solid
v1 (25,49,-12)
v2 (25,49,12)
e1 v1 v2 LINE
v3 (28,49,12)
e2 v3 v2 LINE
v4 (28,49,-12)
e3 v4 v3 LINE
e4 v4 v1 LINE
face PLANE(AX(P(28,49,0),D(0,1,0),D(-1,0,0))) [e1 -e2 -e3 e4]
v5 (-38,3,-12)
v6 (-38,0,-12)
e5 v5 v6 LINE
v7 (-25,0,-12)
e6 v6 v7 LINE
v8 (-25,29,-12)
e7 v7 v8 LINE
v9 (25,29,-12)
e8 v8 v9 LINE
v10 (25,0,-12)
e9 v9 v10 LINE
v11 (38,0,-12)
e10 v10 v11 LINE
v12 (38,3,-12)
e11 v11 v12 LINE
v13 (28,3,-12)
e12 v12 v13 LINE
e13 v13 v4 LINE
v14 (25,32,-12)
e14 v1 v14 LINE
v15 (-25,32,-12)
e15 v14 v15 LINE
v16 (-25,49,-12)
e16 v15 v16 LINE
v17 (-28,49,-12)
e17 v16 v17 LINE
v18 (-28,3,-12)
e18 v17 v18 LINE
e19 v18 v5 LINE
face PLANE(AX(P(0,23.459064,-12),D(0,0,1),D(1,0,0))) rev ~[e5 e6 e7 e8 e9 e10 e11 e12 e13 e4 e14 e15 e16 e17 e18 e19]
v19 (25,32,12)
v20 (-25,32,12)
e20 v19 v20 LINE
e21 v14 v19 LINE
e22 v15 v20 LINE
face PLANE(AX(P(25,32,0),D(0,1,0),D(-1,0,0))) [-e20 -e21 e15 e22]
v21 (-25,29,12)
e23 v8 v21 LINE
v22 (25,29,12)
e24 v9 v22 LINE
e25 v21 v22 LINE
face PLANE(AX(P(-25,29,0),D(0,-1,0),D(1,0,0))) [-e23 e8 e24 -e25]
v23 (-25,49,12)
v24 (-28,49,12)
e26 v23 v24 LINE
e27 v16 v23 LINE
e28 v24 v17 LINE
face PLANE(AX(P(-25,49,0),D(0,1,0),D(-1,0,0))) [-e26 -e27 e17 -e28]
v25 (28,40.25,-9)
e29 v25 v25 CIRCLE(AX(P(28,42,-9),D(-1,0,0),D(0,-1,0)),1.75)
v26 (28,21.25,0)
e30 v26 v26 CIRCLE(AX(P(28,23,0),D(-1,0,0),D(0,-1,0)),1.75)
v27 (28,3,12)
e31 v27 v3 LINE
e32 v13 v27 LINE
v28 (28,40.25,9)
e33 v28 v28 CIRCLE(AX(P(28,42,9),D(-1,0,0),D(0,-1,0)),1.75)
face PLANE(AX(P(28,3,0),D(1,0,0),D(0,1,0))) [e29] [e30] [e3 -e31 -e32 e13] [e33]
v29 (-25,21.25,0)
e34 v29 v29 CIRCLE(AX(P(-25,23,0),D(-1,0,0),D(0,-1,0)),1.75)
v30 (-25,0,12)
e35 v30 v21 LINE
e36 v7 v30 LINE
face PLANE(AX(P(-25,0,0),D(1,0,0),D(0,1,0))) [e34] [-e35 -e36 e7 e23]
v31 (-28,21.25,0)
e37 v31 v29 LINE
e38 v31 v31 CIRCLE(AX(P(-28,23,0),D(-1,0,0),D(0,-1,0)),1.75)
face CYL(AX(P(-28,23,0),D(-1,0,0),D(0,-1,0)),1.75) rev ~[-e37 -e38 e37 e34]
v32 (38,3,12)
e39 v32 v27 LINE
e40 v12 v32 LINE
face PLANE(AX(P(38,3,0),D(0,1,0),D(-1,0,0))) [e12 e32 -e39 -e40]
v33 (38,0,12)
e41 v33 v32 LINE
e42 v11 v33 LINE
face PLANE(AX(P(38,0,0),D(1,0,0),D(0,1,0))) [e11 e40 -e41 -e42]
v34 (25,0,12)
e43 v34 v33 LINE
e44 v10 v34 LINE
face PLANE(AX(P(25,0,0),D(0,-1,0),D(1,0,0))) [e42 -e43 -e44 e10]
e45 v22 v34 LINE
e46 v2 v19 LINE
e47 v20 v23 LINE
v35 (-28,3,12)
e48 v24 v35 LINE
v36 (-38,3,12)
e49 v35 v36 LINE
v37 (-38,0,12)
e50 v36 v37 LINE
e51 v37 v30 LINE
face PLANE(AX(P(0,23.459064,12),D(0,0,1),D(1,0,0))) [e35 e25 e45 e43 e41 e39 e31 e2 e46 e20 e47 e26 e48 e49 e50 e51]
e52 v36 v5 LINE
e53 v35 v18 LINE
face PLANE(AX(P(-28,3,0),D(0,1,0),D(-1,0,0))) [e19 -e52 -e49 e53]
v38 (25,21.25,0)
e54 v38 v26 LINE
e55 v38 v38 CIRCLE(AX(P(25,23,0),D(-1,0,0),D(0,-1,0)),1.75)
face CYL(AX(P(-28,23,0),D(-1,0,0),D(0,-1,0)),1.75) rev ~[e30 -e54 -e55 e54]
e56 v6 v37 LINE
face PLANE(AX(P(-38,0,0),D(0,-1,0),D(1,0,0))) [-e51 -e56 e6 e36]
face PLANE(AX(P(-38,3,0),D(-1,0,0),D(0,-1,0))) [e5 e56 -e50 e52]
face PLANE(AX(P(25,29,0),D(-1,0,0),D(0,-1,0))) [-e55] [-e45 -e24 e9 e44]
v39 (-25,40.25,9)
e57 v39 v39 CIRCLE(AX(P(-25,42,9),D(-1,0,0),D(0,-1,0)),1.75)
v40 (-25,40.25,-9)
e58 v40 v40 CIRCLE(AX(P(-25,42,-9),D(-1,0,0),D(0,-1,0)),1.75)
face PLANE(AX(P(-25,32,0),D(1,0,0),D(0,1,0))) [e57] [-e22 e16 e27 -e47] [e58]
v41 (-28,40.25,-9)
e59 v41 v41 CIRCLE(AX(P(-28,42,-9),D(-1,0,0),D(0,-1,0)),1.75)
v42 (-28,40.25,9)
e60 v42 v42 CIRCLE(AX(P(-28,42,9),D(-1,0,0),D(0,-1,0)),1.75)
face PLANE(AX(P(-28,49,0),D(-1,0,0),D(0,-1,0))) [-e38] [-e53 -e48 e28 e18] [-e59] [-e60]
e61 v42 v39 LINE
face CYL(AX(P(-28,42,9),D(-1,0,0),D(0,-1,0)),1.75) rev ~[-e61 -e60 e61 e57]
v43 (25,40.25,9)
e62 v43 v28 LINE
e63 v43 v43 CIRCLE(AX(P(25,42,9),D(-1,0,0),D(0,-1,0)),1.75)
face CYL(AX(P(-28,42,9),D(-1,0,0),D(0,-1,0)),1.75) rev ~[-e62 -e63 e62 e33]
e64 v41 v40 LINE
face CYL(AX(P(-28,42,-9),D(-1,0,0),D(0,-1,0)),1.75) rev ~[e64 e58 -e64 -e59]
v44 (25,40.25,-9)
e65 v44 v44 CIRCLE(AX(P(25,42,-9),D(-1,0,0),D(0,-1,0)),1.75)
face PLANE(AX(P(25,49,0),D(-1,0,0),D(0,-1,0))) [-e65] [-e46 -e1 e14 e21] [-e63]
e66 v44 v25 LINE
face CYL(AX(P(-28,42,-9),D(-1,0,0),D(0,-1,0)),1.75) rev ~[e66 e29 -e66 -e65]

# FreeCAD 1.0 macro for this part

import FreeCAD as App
import Part
import Sketcher
from FreeCAD import Vector
Q = App.Units.Quantity


def add_polygon(sketch, points):
    """Adds a closed chain of lines whose ends are joined by coincident constraints."""
    first, n = sketch.GeometryCount, len(points)
    for a, b in zip(points, points[1:] + points[:1]):
        sketch.addGeometry(Part.LineSegment(App.Vector(*a, 0), App.Vector(*b, 0)), False)
    for i in range(n):
        sketch.addConstraint(Sketcher.Constraint("Coincident", first + i, 2, first + (i + 1) % n, 1))

doc = App.newDocument("Part")
body = doc.addObject("PartDesign::Body", "Body")

sketch1 = body.newObject("Sketcher::SketchObject", "Sketch")
sketch1.AttachmentSupport = (doc.getObject("XY_Plane"), [""])
sketch1.MapMode = "FlatFace"
add_polygon(sketch1, [(-38, 3), (-38, 0), (-25, 0), (-25, 29), (25, 29), (25, 0), (38, 0), (38, 3), (28, 3), (28, 49), (25, 49), (25, 32), (-25, 32), (-25, 49), (-28, 49), (-28, 3)])
sketch1.addConstraint(Sketcher.Constraint("Vertical", 0))
sketch1.addConstraint(Sketcher.Constraint("Horizontal", 1))
sketch1.addConstraint(Sketcher.Constraint("Vertical", 2))
sketch1.addConstraint(Sketcher.Constraint("Horizontal", 3))
sketch1.addConstraint(Sketcher.Constraint("Vertical", 4))
sketch1.addConstraint(Sketcher.Constraint("Horizontal", 5))
sketch1.addConstraint(Sketcher.Constraint("Vertical", 6))
sketch1.addConstraint(Sketcher.Constraint("Horizontal", 7))
sketch1.addConstraint(Sketcher.Constraint("Vertical", 8))
sketch1.addConstraint(Sketcher.Constraint("Horizontal", 9))
sketch1.addConstraint(Sketcher.Constraint("Vertical", 10))
sketch1.addConstraint(Sketcher.Constraint("Horizontal", 11))
sketch1.addConstraint(Sketcher.Constraint("Vertical", 12))
sketch1.addConstraint(Sketcher.Constraint("Horizontal", 13))
sketch1.addConstraint(Sketcher.Constraint("Vertical", 14))
sketch1.addConstraint(Sketcher.Constraint("Horizontal", 15))
sketch1.addConstraint(Sketcher.Constraint("Symmetric", 1, 2, 4, 2, -1, 1))
sketch1.addConstraint(Sketcher.Constraint("Symmetric", 0, 2, 5, 2, -2))
sketch1.addConstraint(Sketcher.Constraint("Symmetric", 9, 2, 12, 2, -2))
sketch1.addConstraint(Sketcher.Constraint("Symmetric", 7, 2, 14, 2, -2))
sketch1.addConstraint(Sketcher.Constraint("Vertical", 4, 2, 9, 2))
sketch1.addConstraint(Sketcher.Constraint("Equal", 13, 0))
sketch1.addConstraint(Sketcher.Constraint("DistanceX", 1, 1, 1, 2, Q("13 mm")))
sketch1.addConstraint(Sketcher.Constraint("DistanceX", 3, 1, 3, 2, Q("50 mm")))
sketch1.addConstraint(Sketcher.Constraint("DistanceX", 7, 2, 7, 1, Q("10 mm")))
sketch1.addConstraint(Sketcher.Constraint("DistanceY", 2, 1, 2, 2, Q("29 mm")))
sketch1.addConstraint(Sketcher.Constraint("DistanceY", 8, 1, 8, 2, Q("46 mm")))
sketch1.addConstraint(Sketcher.Constraint("DistanceY", 10, 2, 10, 1, Q("17 mm")))
pad1 = body.newObject("PartDesign::Pad", "Pad")
pad1.Profile = sketch1
pad1.Length = 24
pad1.Midplane = True

sketch2 = body.newObject("Sketcher::SketchObject", "Sketch001")
sketch2.AttachmentSupport = (doc.getObject("YZ_Plane"), [""])
sketch2.MapMode = "FlatFace"
sketch2.AttachmentOffset = App.Placement(Vector(0, 0, -28), App.Rotation())
sketch2.addGeometry(Part.Circle(Vector(42, 9, 0), Vector(0, 0, 1), 1.75), False)
sketch2.addGeometry(Part.Circle(Vector(42, -9, 0), Vector(0, 0, 1), 1.75), False)
sketch2.addGeometry(Part.Circle(Vector(23, 0, 0), Vector(0, 0, 1), 1.75), False)
sketch2.addConstraint(Sketcher.Constraint("Equal", 0, 1))
sketch2.addConstraint(Sketcher.Constraint("Equal", 1, 2))
sketch2.addConstraint(Sketcher.Constraint("Symmetric", 0, 3, 1, 3, -1))
sketch2.addConstraint(Sketcher.Constraint("PointOnObject", 2, 3, -1))
sketch2.addConstraint(Sketcher.Constraint("Diameter", 0, Q("3.5 mm")))
sketch2.addConstraint(Sketcher.Constraint("DistanceX", -1, 1, 0, 3, Q("42 mm")))
sketch2.addConstraint(Sketcher.Constraint("DistanceY", -1, 1, 0, 3, Q("9 mm")))
sketch2.addConstraint(Sketcher.Constraint("DistanceX", -1, 1, 2, 3, Q("23 mm")))
pocket1 = body.newObject("PartDesign::Pocket", "Pocket")
pocket1.Profile = sketch2
pocket1.Type = "ThroughAll"
pocket1.Reversed = True

doc.recompute()
